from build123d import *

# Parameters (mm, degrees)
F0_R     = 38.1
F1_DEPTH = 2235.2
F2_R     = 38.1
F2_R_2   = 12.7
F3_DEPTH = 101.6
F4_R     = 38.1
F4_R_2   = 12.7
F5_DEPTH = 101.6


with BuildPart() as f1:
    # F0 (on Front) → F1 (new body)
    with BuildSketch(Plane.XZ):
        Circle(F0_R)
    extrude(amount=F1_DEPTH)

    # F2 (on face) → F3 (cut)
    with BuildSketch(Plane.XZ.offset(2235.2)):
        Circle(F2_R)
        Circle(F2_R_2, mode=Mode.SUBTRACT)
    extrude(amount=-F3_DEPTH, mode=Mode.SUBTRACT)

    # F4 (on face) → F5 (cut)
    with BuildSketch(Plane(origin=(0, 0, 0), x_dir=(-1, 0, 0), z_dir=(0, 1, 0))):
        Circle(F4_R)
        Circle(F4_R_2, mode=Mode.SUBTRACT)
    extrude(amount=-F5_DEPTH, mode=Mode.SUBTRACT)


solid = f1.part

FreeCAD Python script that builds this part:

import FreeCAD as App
import Part
import Sketcher
from FreeCAD import Vector
Q = App.Units.Quantity

doc = App.newDocument("Part")
body = doc.addObject("PartDesign::Body", "Body")

# Sketch on XZ plane
sketch1 = doc.addObject("Sketcher::SketchObject", "Sketch")
body.addObject(sketch1)
sketch1.AttachmentSupport = (doc.XZ_Plane, [""])
sketch1.MapMode = "FlatFace"
sketch1.addGeometry(Part.Circle(Vector(0, 0, 0), Vector(0, 0, 1), 38.1), False)
sketch1.addConstraint([
    Sketcher.Constraint("Coincident", 0, 3, -1, 1),
    Sketcher.Constraint("Diameter", 0, Q("3 in")),
])
pad1 = doc.addObject("PartDesign::Pad", "Pad")
body.addObject(pad1)
pad1.Profile = sketch1
pad1.Length = Q("88 in")

# Sketch on XZ plane
sketch2 = doc.addObject("Sketcher::SketchObject", "Sketch001")
body.addObject(sketch2)
sketch2.AttachmentSupport = (doc.XZ_Plane, [""])
sketch2.MapMode = "FlatFace"
sketch2.AttachmentOffset = App.Placement(Vector(0, 0, 88 * 25.4), App.Rotation())
sketch2.addGeometry([
    Part.Circle(Vector(0, 0, 0), Vector(0, 0, 1), 38.1),
    Part.Circle(Vector(0, 0, 0), Vector(0, 0, 1), 12.7),
], False)
sketch2.addConstraint([
    Sketcher.Constraint("Coincident", 0, 3, -1, 1),
    Sketcher.Constraint("Coincident", 1, 3, -1, 1),
    Sketcher.Constraint("Diameter", 0, Q("3 in")),
    Sketcher.Constraint("Diameter", 1, Q("1 in")),
])
pocket1 = doc.addObject("PartDesign::Pocket", "Pocket")
body.addObject(pocket1)
pocket1.Profile = sketch2
pocket1.Length = Q("4 in")

# Sketch on XZ plane
sketch3 = doc.addObject("Sketcher::SketchObject", "Sketch002")
body.addObject(sketch3)
sketch3.AttachmentSupport = (doc.XZ_Plane, [""])
sketch3.MapMode = "FlatFace"
sketch3.addGeometry([
    Part.Circle(Vector(0, 0, 0), Vector(0, 0, 1), 38.1),
    Part.Circle(Vector(0, 0, 0), Vector(0, 0, 1), 12.7),
], False)
sketch3.addConstraint([
    Sketcher.Constraint("Coincident", 0, 3, -1, 1),
    Sketcher.Constraint("Coincident", 1, 3, -1, 1),
    Sketcher.Constraint("Diameter", 0, Q("3 in")),
    Sketcher.Constraint("Diameter", 1, Q("1 in")),
])
pocket2 = doc.addObject("PartDesign::Pocket", "Pocket001")
body.addObject(pocket2)
pocket2.Profile = sketch3
pocket2.Length = Q("4 in")
pocket2.Reversed = True

doc.recompute()
